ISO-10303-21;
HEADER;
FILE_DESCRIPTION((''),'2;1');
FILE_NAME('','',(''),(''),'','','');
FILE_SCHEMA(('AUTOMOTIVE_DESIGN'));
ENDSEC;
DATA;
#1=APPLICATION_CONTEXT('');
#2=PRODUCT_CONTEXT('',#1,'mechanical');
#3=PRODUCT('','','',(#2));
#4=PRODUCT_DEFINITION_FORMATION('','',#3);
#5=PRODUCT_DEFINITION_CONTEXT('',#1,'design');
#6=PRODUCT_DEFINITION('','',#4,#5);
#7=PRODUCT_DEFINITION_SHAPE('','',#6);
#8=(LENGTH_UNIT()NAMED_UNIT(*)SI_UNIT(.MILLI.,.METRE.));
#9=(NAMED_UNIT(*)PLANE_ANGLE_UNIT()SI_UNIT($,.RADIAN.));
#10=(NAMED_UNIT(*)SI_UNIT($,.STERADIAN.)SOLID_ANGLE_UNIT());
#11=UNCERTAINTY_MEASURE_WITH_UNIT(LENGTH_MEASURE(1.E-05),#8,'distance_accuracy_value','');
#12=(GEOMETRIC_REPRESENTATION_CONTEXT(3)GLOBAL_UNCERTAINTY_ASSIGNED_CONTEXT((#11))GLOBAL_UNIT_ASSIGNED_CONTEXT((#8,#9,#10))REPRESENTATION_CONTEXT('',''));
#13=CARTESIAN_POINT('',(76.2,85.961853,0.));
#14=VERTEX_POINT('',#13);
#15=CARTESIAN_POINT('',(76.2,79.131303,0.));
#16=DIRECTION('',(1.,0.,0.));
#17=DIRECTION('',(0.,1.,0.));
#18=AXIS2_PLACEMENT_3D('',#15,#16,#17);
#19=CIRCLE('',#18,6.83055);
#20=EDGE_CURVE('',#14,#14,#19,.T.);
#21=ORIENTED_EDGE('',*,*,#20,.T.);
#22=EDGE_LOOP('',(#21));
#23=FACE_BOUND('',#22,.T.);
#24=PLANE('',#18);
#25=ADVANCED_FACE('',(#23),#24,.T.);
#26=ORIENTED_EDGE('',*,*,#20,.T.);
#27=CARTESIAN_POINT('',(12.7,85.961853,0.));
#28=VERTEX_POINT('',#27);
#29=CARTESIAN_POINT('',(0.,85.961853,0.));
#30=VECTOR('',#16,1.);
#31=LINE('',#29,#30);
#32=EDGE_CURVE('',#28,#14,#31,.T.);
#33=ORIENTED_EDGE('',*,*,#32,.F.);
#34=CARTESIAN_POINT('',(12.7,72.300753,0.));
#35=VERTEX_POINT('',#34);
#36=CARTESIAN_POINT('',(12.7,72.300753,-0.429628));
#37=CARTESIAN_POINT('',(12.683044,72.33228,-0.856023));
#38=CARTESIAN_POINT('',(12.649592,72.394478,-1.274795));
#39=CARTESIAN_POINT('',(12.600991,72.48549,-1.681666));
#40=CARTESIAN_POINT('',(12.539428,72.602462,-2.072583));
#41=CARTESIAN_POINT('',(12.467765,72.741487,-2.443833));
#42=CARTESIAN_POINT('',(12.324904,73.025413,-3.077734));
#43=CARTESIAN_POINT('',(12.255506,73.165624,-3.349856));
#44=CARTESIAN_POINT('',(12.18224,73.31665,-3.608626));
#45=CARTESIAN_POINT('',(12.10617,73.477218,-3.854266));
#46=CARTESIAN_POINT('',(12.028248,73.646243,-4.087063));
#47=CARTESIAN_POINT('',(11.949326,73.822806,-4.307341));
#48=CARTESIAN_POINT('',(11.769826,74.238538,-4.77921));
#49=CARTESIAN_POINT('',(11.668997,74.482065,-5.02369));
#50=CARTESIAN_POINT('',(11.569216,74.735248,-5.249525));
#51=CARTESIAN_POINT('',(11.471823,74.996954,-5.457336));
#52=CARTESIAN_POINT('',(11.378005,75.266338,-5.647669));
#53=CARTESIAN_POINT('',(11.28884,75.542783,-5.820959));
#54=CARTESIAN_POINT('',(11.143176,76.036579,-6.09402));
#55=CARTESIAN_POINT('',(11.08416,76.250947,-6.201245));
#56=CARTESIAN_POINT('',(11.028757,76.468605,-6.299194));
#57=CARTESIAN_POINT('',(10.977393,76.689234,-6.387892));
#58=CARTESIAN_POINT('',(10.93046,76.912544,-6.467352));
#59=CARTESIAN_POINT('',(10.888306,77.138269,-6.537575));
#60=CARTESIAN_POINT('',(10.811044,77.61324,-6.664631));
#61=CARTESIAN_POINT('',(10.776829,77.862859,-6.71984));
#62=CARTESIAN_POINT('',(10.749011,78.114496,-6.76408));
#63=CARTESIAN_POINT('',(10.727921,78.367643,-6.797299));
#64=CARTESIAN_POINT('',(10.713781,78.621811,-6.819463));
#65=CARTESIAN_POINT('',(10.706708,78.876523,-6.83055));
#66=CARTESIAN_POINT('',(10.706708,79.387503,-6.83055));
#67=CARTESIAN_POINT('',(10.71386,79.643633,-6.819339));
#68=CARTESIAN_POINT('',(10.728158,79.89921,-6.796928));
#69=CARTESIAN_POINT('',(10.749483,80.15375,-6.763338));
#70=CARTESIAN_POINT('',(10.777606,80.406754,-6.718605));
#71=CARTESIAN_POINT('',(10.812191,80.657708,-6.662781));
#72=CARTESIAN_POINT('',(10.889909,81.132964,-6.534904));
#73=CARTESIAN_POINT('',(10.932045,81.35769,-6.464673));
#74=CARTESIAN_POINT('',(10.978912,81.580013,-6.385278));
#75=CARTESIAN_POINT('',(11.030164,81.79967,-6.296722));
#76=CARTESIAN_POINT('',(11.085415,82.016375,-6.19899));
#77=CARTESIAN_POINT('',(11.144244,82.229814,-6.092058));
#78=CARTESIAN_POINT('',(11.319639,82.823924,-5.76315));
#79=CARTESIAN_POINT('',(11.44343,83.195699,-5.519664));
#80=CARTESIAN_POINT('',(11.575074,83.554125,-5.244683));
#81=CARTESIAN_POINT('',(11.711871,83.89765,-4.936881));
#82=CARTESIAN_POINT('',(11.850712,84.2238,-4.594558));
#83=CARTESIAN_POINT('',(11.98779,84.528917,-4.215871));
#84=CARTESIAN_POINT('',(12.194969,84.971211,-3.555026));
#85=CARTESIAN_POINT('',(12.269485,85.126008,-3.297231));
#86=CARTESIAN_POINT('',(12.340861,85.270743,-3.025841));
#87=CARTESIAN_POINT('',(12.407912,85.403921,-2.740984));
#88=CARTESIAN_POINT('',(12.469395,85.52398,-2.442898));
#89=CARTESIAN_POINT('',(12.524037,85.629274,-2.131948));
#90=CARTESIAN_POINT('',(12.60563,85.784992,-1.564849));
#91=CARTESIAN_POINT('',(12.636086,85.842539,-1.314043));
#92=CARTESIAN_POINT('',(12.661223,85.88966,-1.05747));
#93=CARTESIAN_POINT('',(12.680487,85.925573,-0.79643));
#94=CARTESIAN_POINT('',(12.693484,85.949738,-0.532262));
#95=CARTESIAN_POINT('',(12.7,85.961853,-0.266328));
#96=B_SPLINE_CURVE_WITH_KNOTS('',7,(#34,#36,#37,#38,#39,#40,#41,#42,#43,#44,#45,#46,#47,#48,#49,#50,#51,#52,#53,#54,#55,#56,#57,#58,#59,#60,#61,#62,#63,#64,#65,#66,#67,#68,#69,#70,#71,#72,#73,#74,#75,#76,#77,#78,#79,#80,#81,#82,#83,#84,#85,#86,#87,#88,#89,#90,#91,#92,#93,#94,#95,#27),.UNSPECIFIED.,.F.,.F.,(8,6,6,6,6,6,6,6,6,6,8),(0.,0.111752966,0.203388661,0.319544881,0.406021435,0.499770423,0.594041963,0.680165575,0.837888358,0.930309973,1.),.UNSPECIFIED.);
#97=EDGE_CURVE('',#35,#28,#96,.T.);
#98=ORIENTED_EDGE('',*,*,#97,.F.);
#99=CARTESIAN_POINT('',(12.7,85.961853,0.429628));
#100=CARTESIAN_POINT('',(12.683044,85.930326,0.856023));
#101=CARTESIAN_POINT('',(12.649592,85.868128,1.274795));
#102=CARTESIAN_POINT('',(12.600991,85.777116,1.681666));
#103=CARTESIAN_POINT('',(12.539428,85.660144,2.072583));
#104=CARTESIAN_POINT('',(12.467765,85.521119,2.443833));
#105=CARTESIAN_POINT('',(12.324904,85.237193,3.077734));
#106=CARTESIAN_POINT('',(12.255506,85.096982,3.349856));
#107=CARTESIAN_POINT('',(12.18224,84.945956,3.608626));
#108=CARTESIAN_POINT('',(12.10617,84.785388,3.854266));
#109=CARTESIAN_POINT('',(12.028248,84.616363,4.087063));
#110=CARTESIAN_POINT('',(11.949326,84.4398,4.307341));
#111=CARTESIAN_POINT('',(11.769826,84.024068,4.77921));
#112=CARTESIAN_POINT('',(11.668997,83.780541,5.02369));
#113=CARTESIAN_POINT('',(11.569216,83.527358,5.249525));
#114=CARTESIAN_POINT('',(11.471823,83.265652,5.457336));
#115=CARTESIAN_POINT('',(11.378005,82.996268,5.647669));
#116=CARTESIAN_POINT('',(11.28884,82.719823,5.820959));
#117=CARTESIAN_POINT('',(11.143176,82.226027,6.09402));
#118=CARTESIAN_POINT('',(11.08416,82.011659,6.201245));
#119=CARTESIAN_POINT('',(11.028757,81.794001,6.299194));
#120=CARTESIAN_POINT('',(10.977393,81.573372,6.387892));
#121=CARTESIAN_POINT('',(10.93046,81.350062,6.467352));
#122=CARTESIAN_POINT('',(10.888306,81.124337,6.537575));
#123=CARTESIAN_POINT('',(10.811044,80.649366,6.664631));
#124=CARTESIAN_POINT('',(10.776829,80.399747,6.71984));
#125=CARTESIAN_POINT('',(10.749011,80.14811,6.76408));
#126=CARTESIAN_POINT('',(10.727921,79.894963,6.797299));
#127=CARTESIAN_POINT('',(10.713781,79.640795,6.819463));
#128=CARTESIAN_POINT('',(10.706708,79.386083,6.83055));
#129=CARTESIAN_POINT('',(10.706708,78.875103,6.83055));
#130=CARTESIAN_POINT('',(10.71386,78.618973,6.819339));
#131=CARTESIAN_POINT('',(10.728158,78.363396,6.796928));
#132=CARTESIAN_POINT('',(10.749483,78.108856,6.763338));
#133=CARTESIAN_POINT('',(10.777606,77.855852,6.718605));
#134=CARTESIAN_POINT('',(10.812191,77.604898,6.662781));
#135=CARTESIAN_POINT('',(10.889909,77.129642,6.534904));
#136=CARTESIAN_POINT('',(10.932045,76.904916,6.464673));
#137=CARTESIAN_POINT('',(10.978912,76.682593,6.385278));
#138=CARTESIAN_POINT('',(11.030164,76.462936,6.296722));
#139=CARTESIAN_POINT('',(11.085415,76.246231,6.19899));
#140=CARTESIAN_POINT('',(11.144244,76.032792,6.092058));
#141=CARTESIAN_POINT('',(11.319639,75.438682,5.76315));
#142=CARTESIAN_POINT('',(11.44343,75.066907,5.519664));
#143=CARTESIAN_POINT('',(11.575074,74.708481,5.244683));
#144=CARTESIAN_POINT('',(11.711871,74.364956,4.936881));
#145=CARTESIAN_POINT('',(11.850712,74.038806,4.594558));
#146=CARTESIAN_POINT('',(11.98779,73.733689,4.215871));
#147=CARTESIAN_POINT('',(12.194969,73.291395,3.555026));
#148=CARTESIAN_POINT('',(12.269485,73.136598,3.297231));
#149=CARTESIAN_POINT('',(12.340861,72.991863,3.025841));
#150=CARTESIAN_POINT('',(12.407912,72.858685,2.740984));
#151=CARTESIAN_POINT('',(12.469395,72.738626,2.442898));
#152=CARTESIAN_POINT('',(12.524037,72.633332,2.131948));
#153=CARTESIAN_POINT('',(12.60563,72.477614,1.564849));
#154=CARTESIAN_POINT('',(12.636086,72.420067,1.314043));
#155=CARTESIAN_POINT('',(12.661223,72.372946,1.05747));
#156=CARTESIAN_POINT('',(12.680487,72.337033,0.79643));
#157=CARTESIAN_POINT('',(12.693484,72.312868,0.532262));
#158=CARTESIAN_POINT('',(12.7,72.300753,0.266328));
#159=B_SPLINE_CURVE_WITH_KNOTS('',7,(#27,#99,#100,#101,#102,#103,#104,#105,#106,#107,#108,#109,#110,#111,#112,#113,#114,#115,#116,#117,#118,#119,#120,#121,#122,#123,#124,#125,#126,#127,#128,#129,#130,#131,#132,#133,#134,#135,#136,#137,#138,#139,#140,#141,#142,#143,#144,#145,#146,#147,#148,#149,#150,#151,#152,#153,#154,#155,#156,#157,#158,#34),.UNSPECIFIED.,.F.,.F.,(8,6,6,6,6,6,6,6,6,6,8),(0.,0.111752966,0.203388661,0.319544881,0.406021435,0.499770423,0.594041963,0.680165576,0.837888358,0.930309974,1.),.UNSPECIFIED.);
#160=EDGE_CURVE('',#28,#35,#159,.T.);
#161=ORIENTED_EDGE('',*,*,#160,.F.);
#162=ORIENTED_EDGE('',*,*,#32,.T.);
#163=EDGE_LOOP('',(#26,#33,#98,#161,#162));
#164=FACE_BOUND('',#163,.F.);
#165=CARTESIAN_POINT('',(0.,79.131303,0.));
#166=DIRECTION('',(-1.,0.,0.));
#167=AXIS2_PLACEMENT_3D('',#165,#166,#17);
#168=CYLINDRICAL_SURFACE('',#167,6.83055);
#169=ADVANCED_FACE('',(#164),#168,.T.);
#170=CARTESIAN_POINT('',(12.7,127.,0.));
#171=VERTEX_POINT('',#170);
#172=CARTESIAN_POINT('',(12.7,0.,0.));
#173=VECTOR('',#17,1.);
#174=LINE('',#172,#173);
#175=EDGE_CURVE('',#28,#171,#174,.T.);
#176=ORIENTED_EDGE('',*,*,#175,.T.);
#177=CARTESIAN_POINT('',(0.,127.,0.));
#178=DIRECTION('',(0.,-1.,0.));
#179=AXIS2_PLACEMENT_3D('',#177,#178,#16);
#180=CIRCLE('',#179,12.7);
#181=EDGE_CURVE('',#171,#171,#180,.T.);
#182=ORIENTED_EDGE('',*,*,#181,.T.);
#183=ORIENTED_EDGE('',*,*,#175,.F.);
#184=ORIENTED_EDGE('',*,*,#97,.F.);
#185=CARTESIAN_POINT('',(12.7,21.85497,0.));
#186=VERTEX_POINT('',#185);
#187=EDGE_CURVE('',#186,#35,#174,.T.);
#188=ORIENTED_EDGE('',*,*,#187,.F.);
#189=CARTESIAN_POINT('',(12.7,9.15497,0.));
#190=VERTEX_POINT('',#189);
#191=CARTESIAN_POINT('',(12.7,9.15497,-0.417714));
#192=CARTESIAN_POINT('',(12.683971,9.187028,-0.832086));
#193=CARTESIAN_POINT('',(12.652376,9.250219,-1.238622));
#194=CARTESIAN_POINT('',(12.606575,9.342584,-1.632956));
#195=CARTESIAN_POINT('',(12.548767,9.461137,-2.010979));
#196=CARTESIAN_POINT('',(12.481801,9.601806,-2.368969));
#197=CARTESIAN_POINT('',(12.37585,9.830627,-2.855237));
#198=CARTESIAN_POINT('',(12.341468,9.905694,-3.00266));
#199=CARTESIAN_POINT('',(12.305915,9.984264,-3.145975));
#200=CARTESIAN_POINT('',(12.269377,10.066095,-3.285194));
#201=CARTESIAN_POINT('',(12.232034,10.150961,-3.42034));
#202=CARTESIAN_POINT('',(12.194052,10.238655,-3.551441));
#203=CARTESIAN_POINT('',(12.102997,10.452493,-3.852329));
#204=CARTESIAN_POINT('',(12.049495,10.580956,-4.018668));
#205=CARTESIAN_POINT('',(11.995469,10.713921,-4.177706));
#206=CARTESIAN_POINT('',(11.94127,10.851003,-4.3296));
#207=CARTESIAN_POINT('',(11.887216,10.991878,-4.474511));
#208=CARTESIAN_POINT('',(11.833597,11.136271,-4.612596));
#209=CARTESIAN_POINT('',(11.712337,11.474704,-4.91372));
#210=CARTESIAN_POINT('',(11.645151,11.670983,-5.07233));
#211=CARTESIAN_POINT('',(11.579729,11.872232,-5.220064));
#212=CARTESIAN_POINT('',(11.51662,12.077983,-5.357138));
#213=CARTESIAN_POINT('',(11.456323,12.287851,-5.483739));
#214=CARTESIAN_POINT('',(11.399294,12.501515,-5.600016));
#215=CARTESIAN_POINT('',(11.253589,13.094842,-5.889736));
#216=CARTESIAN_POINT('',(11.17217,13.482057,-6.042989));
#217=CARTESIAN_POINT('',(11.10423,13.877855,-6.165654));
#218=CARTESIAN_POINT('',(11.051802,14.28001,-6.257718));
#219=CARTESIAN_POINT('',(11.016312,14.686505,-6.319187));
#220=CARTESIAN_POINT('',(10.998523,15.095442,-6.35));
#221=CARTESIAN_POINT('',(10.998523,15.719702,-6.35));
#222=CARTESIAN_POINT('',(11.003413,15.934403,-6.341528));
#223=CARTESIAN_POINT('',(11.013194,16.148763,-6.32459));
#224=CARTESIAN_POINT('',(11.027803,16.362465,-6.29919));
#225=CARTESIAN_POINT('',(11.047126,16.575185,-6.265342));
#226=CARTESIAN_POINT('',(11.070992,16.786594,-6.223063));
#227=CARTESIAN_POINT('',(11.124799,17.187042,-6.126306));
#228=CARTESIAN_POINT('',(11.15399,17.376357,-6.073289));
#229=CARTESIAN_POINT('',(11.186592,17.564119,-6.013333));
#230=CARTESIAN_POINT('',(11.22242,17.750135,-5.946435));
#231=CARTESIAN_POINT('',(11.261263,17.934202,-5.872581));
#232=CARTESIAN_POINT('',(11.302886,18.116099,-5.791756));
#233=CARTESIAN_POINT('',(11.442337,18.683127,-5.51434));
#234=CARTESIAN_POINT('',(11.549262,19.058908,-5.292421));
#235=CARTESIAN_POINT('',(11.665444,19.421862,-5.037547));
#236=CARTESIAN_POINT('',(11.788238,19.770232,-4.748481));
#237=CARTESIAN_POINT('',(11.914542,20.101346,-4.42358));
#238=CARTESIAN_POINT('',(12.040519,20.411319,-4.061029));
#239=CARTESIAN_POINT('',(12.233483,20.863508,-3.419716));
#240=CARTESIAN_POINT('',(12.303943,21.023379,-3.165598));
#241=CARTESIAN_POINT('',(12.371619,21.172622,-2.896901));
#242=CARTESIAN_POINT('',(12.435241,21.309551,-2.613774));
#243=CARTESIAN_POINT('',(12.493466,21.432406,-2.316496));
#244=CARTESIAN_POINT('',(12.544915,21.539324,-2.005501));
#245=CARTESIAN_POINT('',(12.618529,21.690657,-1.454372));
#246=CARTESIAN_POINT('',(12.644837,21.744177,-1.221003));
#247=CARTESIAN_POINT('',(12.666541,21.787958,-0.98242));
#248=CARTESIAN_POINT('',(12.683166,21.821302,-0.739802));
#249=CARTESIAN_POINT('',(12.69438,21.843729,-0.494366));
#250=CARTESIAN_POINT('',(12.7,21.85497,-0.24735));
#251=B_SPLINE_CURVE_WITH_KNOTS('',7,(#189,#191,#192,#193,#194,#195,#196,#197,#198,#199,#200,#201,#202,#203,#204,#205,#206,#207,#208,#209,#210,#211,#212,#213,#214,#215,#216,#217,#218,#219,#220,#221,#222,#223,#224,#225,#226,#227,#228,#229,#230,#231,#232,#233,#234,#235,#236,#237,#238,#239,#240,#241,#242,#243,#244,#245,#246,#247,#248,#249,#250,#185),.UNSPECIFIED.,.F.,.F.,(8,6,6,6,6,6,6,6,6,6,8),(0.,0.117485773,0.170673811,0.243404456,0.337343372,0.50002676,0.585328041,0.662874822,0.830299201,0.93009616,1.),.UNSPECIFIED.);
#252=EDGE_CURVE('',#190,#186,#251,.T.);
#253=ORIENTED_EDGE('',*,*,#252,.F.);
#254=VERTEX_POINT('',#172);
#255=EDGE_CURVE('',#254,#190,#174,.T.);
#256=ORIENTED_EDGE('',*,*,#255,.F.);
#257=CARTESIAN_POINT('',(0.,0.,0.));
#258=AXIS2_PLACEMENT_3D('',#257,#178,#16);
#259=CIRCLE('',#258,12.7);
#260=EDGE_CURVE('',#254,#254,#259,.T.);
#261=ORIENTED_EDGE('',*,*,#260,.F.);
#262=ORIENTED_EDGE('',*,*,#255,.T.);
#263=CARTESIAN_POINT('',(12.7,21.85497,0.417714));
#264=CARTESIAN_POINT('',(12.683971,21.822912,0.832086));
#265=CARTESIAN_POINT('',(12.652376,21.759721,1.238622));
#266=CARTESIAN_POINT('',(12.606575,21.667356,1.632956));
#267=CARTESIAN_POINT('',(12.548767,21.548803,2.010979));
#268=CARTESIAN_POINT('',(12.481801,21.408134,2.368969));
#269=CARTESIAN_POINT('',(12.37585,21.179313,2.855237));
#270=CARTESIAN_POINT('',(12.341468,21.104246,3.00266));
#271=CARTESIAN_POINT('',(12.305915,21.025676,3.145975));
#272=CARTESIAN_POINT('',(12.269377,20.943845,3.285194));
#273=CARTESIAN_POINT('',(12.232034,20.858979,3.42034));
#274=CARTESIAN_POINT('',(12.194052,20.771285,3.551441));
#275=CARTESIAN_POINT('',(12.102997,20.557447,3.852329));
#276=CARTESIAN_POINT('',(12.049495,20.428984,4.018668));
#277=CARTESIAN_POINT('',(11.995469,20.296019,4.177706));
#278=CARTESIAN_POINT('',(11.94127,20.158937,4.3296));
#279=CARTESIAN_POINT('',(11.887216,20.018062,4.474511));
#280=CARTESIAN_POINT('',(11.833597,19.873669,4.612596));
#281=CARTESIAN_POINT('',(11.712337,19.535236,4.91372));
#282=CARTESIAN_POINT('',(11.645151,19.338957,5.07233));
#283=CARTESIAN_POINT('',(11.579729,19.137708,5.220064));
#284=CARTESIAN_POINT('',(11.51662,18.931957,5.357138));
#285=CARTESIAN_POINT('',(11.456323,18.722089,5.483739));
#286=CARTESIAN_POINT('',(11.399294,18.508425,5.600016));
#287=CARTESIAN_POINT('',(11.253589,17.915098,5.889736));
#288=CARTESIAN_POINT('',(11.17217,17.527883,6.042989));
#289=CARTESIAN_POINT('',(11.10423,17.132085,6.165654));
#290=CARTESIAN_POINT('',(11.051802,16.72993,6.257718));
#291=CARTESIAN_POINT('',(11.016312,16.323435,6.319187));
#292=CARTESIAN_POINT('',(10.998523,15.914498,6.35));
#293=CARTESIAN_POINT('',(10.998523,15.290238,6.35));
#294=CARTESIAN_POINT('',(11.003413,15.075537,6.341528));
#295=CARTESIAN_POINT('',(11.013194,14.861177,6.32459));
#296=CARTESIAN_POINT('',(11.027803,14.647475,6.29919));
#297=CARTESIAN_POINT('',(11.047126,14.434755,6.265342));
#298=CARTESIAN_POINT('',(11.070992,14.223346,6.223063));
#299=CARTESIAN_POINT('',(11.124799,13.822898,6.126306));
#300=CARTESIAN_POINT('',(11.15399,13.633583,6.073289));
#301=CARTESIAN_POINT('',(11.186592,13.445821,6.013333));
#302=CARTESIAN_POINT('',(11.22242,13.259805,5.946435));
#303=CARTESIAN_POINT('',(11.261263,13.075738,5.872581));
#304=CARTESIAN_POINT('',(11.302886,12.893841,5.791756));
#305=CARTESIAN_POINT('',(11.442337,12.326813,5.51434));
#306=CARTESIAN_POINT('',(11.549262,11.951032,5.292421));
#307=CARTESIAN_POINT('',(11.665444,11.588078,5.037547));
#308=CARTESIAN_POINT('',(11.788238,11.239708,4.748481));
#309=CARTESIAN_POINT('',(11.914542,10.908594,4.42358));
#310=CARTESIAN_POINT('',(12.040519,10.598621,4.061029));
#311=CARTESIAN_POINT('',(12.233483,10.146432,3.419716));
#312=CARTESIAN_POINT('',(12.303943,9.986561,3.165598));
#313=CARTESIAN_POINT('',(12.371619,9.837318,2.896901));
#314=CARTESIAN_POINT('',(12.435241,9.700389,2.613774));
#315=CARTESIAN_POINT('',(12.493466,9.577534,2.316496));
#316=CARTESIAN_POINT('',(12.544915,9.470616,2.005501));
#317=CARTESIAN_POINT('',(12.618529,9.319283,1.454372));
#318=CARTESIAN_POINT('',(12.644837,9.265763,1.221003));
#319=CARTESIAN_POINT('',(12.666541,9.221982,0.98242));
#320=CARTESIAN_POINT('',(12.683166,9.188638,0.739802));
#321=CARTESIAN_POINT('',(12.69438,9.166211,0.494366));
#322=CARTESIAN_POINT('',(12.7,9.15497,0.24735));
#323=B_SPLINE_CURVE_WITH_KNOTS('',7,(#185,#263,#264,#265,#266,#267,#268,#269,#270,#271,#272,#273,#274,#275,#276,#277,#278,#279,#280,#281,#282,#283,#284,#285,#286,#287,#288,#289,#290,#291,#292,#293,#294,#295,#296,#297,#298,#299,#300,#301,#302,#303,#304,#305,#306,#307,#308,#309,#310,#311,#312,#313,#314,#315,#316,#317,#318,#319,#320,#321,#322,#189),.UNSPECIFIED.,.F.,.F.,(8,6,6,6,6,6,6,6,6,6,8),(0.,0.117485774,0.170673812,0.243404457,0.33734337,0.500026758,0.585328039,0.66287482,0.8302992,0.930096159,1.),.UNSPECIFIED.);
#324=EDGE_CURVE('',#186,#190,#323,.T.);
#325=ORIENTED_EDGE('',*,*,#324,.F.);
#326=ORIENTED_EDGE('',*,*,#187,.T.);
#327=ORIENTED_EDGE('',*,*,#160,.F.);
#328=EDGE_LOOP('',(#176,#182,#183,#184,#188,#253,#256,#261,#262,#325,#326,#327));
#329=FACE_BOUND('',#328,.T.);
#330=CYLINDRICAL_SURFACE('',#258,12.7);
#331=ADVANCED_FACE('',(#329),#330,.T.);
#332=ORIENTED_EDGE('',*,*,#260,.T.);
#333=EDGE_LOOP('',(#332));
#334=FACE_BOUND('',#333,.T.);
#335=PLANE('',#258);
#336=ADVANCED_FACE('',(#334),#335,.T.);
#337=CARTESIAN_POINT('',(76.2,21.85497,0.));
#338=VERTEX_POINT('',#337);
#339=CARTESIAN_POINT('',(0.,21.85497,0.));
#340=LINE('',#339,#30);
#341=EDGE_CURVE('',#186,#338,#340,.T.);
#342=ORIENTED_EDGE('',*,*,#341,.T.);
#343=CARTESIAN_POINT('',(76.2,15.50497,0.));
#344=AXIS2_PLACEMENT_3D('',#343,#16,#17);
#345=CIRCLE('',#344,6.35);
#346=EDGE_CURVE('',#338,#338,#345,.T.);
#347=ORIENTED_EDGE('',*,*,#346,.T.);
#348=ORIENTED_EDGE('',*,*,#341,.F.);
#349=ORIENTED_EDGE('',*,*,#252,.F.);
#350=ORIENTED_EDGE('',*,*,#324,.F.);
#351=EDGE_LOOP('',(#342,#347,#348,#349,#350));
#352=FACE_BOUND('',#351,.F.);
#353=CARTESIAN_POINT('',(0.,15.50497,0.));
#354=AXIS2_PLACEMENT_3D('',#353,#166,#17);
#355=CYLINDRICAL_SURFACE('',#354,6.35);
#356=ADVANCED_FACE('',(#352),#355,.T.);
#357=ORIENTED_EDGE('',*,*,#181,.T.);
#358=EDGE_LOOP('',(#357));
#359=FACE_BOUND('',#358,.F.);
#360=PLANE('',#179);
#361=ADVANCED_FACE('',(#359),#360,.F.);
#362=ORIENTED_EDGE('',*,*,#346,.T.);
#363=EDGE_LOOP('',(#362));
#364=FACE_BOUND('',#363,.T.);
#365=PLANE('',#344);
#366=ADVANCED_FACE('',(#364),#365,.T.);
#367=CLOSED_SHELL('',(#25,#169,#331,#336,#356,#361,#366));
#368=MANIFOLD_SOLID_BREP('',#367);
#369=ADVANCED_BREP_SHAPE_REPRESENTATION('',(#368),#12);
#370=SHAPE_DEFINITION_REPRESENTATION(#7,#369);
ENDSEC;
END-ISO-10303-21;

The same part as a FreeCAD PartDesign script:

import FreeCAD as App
import Part
import Sketcher
from FreeCAD import Vector
Q = App.Units.Quantity

doc = App.newDocument("Part")
params = doc.addObject("Spreadsheet::Sheet", "Params")
for row, (alias, value) in enumerate([
    ("sketch1_diameter", "1 in"),
    ("pad1_length", "5 in"),
    ("sketch2_diameter", "0.5 in"),
    ("pad2_length", "3 in"),
], start=1):
    params.set(f"A{row}", alias)
    params.set(f"B{row}", "=" + value)
    params.setAlias(f"B{row}", alias)

body = doc.addObject("PartDesign::Body", "Body")

sketch1 = doc.addObject("Sketcher::SketchObject", "Sketch")
body.addObject(sketch1)
sketch1.AttachmentSupport = (doc.XZ_Plane, [""])
sketch1.MapMode = "FlatFace"
sketch1.addGeometry(Part.Circle(Vector(0, 0, 0), Vector(0, 0, 1), 13), False)
sketch1.addConstraint(Sketcher.Constraint("Coincident", 0, 3, -1, 1))
sketch1.addConstraint(Sketcher.Constraint("Diameter", 0, Q("1 in")))
sketch1.setExpression("Constraints[1]", "Params.sketch1_diameter")
pad1 = doc.addObject("PartDesign::Pad", "Pad")
body.addObject(pad1)
pad1.Profile = sketch1
pad1.setExpression("Length", "Params.pad1_length")
pad1.Reversed = True

sketch2 = doc.addObject("Sketcher::SketchObject", "Sketch001")
body.addObject(sketch2)
sketch2.AttachmentSupport = (doc.YZ_Plane, [""])
sketch2.MapMode = "FlatFace"
sketch2.addGeometry(Part.Circle(Vector(16, 0, 0), Vector(0, 0, 1), 6), False)
sketch2.addGeometry(Part.Circle(Vector(79, 0, 0), Vector(0, 0, 1), 7), False)
sketch2.addConstraint(Sketcher.Constraint("PointOnObject", 0, 3, -1))
sketch2.addConstraint(Sketcher.Constraint("PointOnObject", 1, 3, -1))
sketch2.addConstraint(Sketcher.Constraint("Diameter", 0, Q("0.5 in")))
sketch2.addConstraint(Sketcher.Constraint("Diameter", 1, 13.6611))
sketch2.addConstraint(Sketcher.Constraint("DistanceX", -1, 1, 0, 3, 15.50497))
sketch2.addConstraint(Sketcher.Constraint("DistanceX", -1, 1, 1, 3, 79.131303))
sketch2.setExpression("Constraints[2]", "Params.sketch2_diameter")
pad2 = doc.addObject("PartDesign::Pad", "Pad001")
body.addObject(pad2)
pad2.Profile = sketch2
pad2.setExpression("Length", "Params.pad2_length")

doc.recompute()
